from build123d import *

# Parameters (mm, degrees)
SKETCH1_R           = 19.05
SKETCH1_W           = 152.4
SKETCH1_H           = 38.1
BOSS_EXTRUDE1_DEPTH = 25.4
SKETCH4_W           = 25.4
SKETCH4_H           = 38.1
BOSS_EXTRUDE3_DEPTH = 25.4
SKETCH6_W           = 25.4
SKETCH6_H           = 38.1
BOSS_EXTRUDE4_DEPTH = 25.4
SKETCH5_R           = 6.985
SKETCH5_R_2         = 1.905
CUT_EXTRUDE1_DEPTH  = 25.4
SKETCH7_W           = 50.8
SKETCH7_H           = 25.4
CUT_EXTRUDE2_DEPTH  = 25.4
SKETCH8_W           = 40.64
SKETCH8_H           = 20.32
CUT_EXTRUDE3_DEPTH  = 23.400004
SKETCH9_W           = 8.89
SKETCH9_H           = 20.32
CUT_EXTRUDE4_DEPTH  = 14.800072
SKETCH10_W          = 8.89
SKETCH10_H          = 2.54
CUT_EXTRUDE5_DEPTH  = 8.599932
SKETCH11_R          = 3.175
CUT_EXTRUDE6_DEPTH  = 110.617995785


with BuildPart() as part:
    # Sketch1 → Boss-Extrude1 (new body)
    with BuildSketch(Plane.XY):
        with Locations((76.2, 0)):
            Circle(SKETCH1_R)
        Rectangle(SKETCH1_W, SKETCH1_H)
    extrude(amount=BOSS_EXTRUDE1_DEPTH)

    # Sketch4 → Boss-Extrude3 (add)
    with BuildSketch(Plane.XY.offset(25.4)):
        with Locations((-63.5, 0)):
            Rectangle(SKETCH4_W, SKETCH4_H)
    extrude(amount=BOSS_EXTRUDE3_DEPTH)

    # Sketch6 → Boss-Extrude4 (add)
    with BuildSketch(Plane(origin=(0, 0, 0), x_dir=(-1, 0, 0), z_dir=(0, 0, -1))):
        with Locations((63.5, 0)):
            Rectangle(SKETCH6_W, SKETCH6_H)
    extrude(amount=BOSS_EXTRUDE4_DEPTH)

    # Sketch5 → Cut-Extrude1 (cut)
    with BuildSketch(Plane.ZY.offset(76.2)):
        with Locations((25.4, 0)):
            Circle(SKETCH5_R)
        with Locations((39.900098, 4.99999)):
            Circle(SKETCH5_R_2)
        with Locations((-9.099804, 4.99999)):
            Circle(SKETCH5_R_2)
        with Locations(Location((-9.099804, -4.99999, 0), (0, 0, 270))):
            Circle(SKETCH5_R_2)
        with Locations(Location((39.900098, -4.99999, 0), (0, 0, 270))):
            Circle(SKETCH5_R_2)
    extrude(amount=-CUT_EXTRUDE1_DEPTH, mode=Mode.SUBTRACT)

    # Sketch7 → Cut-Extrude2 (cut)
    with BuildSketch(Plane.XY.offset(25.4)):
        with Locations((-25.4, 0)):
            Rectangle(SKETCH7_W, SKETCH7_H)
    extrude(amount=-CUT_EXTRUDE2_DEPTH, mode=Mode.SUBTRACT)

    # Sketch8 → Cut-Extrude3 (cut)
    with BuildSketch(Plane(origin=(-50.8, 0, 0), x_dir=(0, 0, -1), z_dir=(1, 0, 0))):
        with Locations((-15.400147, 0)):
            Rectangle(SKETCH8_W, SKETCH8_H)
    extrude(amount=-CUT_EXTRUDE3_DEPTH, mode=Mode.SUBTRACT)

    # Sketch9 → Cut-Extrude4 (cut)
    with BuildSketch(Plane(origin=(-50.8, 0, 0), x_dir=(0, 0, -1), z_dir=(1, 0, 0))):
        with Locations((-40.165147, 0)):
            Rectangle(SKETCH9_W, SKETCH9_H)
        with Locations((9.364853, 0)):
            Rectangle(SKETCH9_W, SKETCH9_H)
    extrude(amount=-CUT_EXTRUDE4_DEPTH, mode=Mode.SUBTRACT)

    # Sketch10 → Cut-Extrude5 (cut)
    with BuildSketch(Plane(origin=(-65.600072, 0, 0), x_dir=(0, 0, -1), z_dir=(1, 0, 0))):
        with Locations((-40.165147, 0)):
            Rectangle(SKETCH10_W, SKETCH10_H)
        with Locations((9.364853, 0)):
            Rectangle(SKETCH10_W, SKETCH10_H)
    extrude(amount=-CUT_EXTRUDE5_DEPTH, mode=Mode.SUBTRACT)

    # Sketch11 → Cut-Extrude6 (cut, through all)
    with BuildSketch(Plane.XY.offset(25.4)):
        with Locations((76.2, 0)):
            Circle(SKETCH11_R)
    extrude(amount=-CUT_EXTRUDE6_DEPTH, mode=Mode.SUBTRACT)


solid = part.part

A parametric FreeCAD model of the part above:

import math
import FreeCAD as App
import Part
import Sketcher

V = App.Vector
Q = App.Units.Quantity


def add_polygon(sketch, points):
    """Adds a closed chain of lines whose ends are joined by coincident constraints."""
    first, n = sketch.GeometryCount, len(points)
    for a, b in zip(points, points[1:] + points[:1]):
        sketch.addGeometry(Part.LineSegment(App.Vector(*a, 0), App.Vector(*b, 0)), False)
    for i in range(n):
        sketch.addConstraint(Sketcher.Constraint("Coincident", first + i, 2, first + (i + 1) % n, 1))

doc = App.newDocument("Part")
body = doc.addObject("PartDesign::Body", "Body")

# Sketch on XY plane
sketch1 = doc.addObject("Sketcher::SketchObject", "Sketch")
body.addObject(sketch1)
sketch1.AttachmentSupport = (doc.XY_Plane, [""])
sketch1.MapMode = "FlatFace"
sketch1.addGeometry(Part.ArcOfCircle(Part.Circle(V(76.2, 0, 0), V(0, 0, 1), 19.05), math.radians(-90), math.radians(90)), False)
sketch1.addGeometry(Part.LineSegment(V(76.2, 19.05, 0), V(-76.2, 19.05, 0)), False)
sketch1.addGeometry(Part.LineSegment(V(-76.2, 19.05, 0), V(-76.2, -19.05, 0)), False)
sketch1.addGeometry(Part.LineSegment(V(-76.2, -19.05, 0), V(76.2, -19.05, 0)), False)
sketch1.addConstraint(Sketcher.Constraint("Tangent", 0, 2, 1, 1))
sketch1.addConstraint(Sketcher.Constraint("Coincident", 1, 2, 2, 1))
sketch1.addConstraint(Sketcher.Constraint("Coincident", 2, 2, 3, 1))
sketch1.addConstraint(Sketcher.Constraint("Tangent", 3, 2, 0, 1))
sketch1.addConstraint(Sketcher.Constraint("Horizontal", 1))
sketch1.addConstraint(Sketcher.Constraint("Vertical", 2))
sketch1.addConstraint(Sketcher.Constraint("Horizontal", 3))
sketch1.addConstraint(Sketcher.Constraint("Symmetric", 0, 2, 2, 2, -1, 1))
sketch1.addConstraint(Sketcher.Constraint("DistanceX", 1, 2, 1, 1, Q("6 in")))
sketch1.addConstraint(Sketcher.Constraint("Radius", 0, Q("0.75 in")))
pad1 = doc.addObject("PartDesign::Pad", "Pad")
body.addObject(pad1)
pad1.Profile = sketch1
pad1.Length = Q("1 in")

# Sketch on XY plane
sketch2 = doc.addObject("Sketcher::SketchObject", "Sketch001")
body.addObject(sketch2)
sketch2.AttachmentSupport = (doc.XY_Plane, [""])
sketch2.MapMode = "FlatFace"
sketch2.AttachmentOffset = App.Placement(V(0, 0, 1 * 25.4), App.Rotation())
add_polygon(sketch2, [(-76.2, 19.05), (-76.2, -19.05), (-50.8, -19.05), (-50.8, 19.05)])  # lines 0-3
sketch2.addConstraint(Sketcher.Constraint("Vertical", 0))
sketch2.addConstraint(Sketcher.Constraint("Horizontal", 1))
sketch2.addConstraint(Sketcher.Constraint("Vertical", 2))
sketch2.addConstraint(Sketcher.Constraint("Horizontal", 3))
sketch2.addConstraint(Sketcher.Constraint("DistanceX", 1, 1, 1, 2, Q("1 in")))
sketch2.addConstraint(Sketcher.Constraint("DistanceY", 0, 2, 0, 1, Q("1.5 in")))
sketch2.addConstraint(Sketcher.Constraint("DistanceX", 0, 2, -1, 1, Q("3 in")))
sketch2.addConstraint(Sketcher.Constraint("DistanceY", 0, 2, -1, 1, Q("0.75 in")))
pad2 = doc.addObject("PartDesign::Pad", "Pad001")
body.addObject(pad2)
pad2.Profile = sketch2
pad2.Length = Q("1 in")

# Sketch on XY plane
sketch3 = doc.addObject("Sketcher::SketchObject", "Sketch002")
body.addObject(sketch3)
sketch3.AttachmentSupport = (doc.XY_Plane, [""])
sketch3.MapMode = "FlatFace"
add_polygon(sketch3, [(-50.8, 19.05), (-50.8, -19.05), (-76.2, -19.05), (-76.2, 19.05)])  # lines 0-3
sketch3.addConstraint(Sketcher.Constraint("Vertical", 0))
sketch3.addConstraint(Sketcher.Constraint("Horizontal", 1))
sketch3.addConstraint(Sketcher.Constraint("Vertical", 2))
sketch3.addConstraint(Sketcher.Constraint("Horizontal", 3))
sketch3.addConstraint(Sketcher.Constraint("DistanceX", 1, 2, 1, 1, Q("1 in")))
sketch3.addConstraint(Sketcher.Constraint("DistanceY", 0, 2, 0, 1, Q("1.5 in")))
sketch3.addConstraint(Sketcher.Constraint("DistanceX", 0, 2, -1, 1, Q("2 in")))
sketch3.addConstraint(Sketcher.Constraint("DistanceY", 0, 2, -1, 1, Q("0.75 in")))
pad3 = doc.addObject("PartDesign::Pad", "Pad002")
body.addObject(pad3)
pad3.Profile = sketch3
pad3.Length = Q("1 in")
pad3.Reversed = True

# Sketch on YZ plane
sketch4 = doc.addObject("Sketcher::SketchObject", "Sketch003")
body.addObject(sketch4)
sketch4.AttachmentSupport = (doc.YZ_Plane, [""])
sketch4.MapMode = "FlatFace"
sketch4.AttachmentOffset = App.Placement(V(0, 0, -3 * 25.4), App.Rotation())
sketch4.addGeometry(Part.Circle(V(0, 25.4, 0), V(0, 0, 1), 6.985), False)
sketch4.addGeometry(Part.Circle(V(4.99999, 39.900098, 0), V(0, 0, 1), 1.905), False)
sketch4.addGeometry(Part.Circle(V(4.99999, -9.099804, 0), V(0, 0, 1), 1.905), False)
sketch4.addGeometry(Part.Circle(V(-4.99999, -9.099804, 0), V(0, 0, 1), 1.905), False)
sketch4.addGeometry(Part.Circle(V(-4.99999, 39.900098, 0), V(0, 0, 1), 1.905), False)
sketch4.addConstraint(Sketcher.Constraint("Equal", 1, 2))
sketch4.addConstraint(Sketcher.Constraint("Equal", 2, 3))
sketch4.addConstraint(Sketcher.Constraint("Equal", 3, 4))
sketch4.addConstraint(Sketcher.Constraint("Symmetric", 2, 3, 3, 3, -2))
sketch4.addConstraint(Sketcher.Constraint("Symmetric", 1, 3, 4, 3, -2))
sketch4.addConstraint(Sketcher.Constraint("PointOnObject", 0, 3, -2))
sketch4.addConstraint(Sketcher.Constraint("Vertical", 1, 3, 2, 3))
sketch4.addConstraint(Sketcher.Constraint("Diameter", 0, Q("0.55 in")))
sketch4.addConstraint(Sketcher.Constraint("Diameter", 1, Q("0.15 in")))
sketch4.addConstraint(Sketcher.Constraint("DistanceY", -1, 1, 0, 3, Q("1 in")))
sketch4.addConstraint(Sketcher.Constraint("DistanceX", 3, 3, 2, 3, Q("0.3937 in")))
sketch4.addConstraint(Sketcher.Constraint("DistanceY", 0, 3, 1, 3, Q("14.500098 mm")))
sketch4.addConstraint(Sketcher.Constraint("DistanceY", 2, 3, -1, 1, Q("9.099804 mm")))
pocket1 = doc.addObject("PartDesign::Pocket", "Pocket")
body.addObject(pocket1)
pocket1.Profile = sketch4
pocket1.Length = Q("1 in")
pocket1.Reversed = True

# Sketch on XY plane
sketch5 = doc.addObject("Sketcher::SketchObject", "Sketch004")
body.addObject(sketch5)
sketch5.AttachmentSupport = (doc.XY_Plane, [""])
sketch5.MapMode = "FlatFace"
sketch5.AttachmentOffset = App.Placement(V(0, 0, 1 * 25.4), App.Rotation())
add_polygon(sketch5, [(-50.8, 12.7), (-50.8, -12.7), (0, -12.7), (0, 12.7)])  # lines 0-3
sketch5.addConstraint(Sketcher.Constraint("Vertical", 0))
sketch5.addConstraint(Sketcher.Constraint("Horizontal", 1))
sketch5.addConstraint(Sketcher.Constraint("Vertical", 2))
sketch5.addConstraint(Sketcher.Constraint("Horizontal", 3))
sketch5.addConstraint(Sketcher.Constraint("Symmetric", 1, 2, 2, 2, -1, 1))
sketch5.addConstraint(Sketcher.Constraint("DistanceX", 1, 1, 1, 2, Q("2 in")))
sketch5.addConstraint(Sketcher.Constraint("DistanceY", 0, 2, 0, 1, Q("1 in")))
pocket2 = doc.addObject("PartDesign::Pocket", "Pocket001")
body.addObject(pocket2)
pocket2.Profile = sketch5
pocket2.Length = Q("1 in")

# Sketch on YZ plane
sketch6 = doc.addObject("Sketcher::SketchObject", "Sketch005")
body.addObject(sketch6)
sketch6.AttachmentSupport = (doc.YZ_Plane, [""])
sketch6.MapMode = "FlatFace"
sketch6.AttachmentOffset = App.Placement(V(0, 0, -2 * 25.4), App.Rotation())
add_polygon(sketch6, [(10.16, 35.720147), (-10.16, 35.720147), (-10.16, -4.919853), (10.16, -4.919853)])  # lines 0-3
sketch6.addConstraint(Sketcher.Constraint("Horizontal", 0))
sketch6.addConstraint(Sketcher.Constraint("Vertical", 1))
sketch6.addConstraint(Sketcher.Constraint("Horizontal", 2))
sketch6.addConstraint(Sketcher.Constraint("Vertical", 3))
sketch6.addConstraint(Sketcher.Constraint("DistanceX", 0, 2, 0, 1, Q("0.8 in")))
sketch6.addConstraint(Sketcher.Constraint("DistanceY", 1, 2, 1, 1, Q("1.6 in")))
sketch6.addConstraint(Sketcher.Constraint("DistanceX", 0, 2, -1, 1, Q("0.4 in")))
sketch6.addConstraint(Sketcher.Constraint("DistanceY", -1, 1, 0, 2, Q("35.720147 mm")))
pocket3 = doc.addObject("PartDesign::Pocket", "Pocket002")
body.addObject(pocket3)
pocket3.Profile = sketch6
pocket3.Length = 23.400004

# Sketch on YZ plane
sketch7 = doc.addObject("Sketcher::SketchObject", "Sketch006")
body.addObject(sketch7)
sketch7.AttachmentSupport = (doc.YZ_Plane, [""])
sketch7.MapMode = "FlatFace"
sketch7.AttachmentOffset = App.Placement(V(0, 0, -2 * 25.4), App.Rotation())
add_polygon(sketch7, [(10.16, 44.610147), (-10.16, 44.610147), (-10.16, 35.720147), (10.16, 35.720147)])  # lines 0-3
add_polygon(sketch7, [(10.16, -4.919853), (-10.16, -4.919853), (-10.16, -13.809853), (10.16, -13.809853)])  # lines 4-7
sketch7.addConstraint(Sketcher.Constraint("Horizontal", 0))
sketch7.addConstraint(Sketcher.Constraint("Vertical", 1))
sketch7.addConstraint(Sketcher.Constraint("Horizontal", 2))
sketch7.addConstraint(Sketcher.Constraint("Vertical", 3))
sketch7.addConstraint(Sketcher.Constraint("Horizontal", 4))
sketch7.addConstraint(Sketcher.Constraint("Vertical", 5))
sketch7.addConstraint(Sketcher.Constraint("Horizontal", 6))
sketch7.addConstraint(Sketcher.Constraint("Vertical", 7))
sketch7.addConstraint(Sketcher.Constraint("Vertical", 1, 2, 4, 2))
sketch7.addConstraint(Sketcher.Constraint("Vertical", 3, 2, 6, 2))
sketch7.addConstraint(Sketcher.Constraint("Equal", 3, 5))
sketch7.addConstraint(Sketcher.Constraint("DistanceX", 0, 2, 0, 1, Q("0.8 in")))
sketch7.addConstraint(Sketcher.Constraint("DistanceY", 1, 2, 1, 1, Q("0.35 in")))
sketch7.addConstraint(Sketcher.Constraint("DistanceX", 0, 2, -1, 1, Q("0.4 in")))
sketch7.addConstraint(Sketcher.Constraint("DistanceY", 4, 2, 1, 2, Q("1.6 in")))
sketch7.addConstraint(Sketcher.Constraint("DistanceY", -1, 1, 0, 2, Q("44.610147 mm")))
pocket4 = doc.addObject("PartDesign::Pocket", "Pocket003")
body.addObject(pocket4)
pocket4.Profile = sketch7
pocket4.Length = 14.800072

# Sketch on YZ plane
sketch8 = doc.addObject("Sketcher::SketchObject", "Sketch007")
body.addObject(sketch8)
sketch8.AttachmentSupport = (doc.YZ_Plane, [""])
sketch8.MapMode = "FlatFace"
sketch8.AttachmentOffset = App.Placement(V(0, 0, -65.600072), App.Rotation())
add_polygon(sketch8, [(1.27, 44.610147), (-1.27, 44.610147), (-1.27, 35.720147), (1.27, 35.720147)])  # lines 0-3
add_polygon(sketch8, [(1.27, -4.919853), (-1.27, -4.919853), (-1.27, -13.809853), (1.27, -13.809853)])  # lines 4-7
sketch8.addConstraint(Sketcher.Constraint("Horizontal", 0))
sketch8.addConstraint(Sketcher.Constraint("Vertical", 1))
sketch8.addConstraint(Sketcher.Constraint("Horizontal", 2))
sketch8.addConstraint(Sketcher.Constraint("Vertical", 3))
sketch8.addConstraint(Sketcher.Constraint("Horizontal", 4))
sketch8.addConstraint(Sketcher.Constraint("Vertical", 5))
sketch8.addConstraint(Sketcher.Constraint("Horizontal", 6))
sketch8.addConstraint(Sketcher.Constraint("Vertical", 7))
sketch8.addConstraint(Sketcher.Constraint("Vertical", 1, 2, 4, 2))
sketch8.addConstraint(Sketcher.Constraint("Vertical", 3, 2, 6, 2))
sketch8.addConstraint(Sketcher.Constraint("Equal", 3, 5))
sketch8.addConstraint(Sketcher.Constraint("DistanceX", 0, 2, 0, 1, Q("0.1 in")))
sketch8.addConstraint(Sketcher.Constraint("DistanceY", 1, 2, 1, 1, Q("0.35 in")))
sketch8.addConstraint(Sketcher.Constraint("DistanceY", 4, 2, 1, 2, Q("1.6 in")))
sketch8.addConstraint(Sketcher.Constraint("DistanceX", 0, 2, -1, 1, Q("0.05 in")))
sketch8.addConstraint(Sketcher.Constraint("DistanceY", -1, 1, 0, 2, Q("44.610147 mm")))
pocket5 = doc.addObject("PartDesign::Pocket", "Pocket004")
body.addObject(pocket5)
pocket5.Profile = sketch8
pocket5.Length = 8.599932

# Sketch on XY plane
sketch9 = doc.addObject("Sketcher::SketchObject", "Sketch008")
body.addObject(sketch9)
sketch9.AttachmentSupport = (doc.XY_Plane, [""])
sketch9.MapMode = "FlatFace"
sketch9.AttachmentOffset = App.Placement(V(0, 0, 1 * 25.4), App.Rotation())
sketch9.addGeometry(Part.Circle(V(76.2, 0, 0), V(0, 0, 1), 3.175), False)
sketch9.addConstraint(Sketcher.Constraint("PointOnObject", 0, 3, -1))
sketch9.addConstraint(Sketcher.Constraint("Diameter", 0, Q("0.25 in")))
sketch9.addConstraint(Sketcher.Constraint("DistanceX", -1, 1, 0, 3, Q("3 in")))
pocket6 = doc.addObject("PartDesign::Pocket", "Pocket005")
body.addObject(pocket6)
pocket6.Profile = sketch9
pocket6.Type = "ThroughAll"

doc.recompute()
